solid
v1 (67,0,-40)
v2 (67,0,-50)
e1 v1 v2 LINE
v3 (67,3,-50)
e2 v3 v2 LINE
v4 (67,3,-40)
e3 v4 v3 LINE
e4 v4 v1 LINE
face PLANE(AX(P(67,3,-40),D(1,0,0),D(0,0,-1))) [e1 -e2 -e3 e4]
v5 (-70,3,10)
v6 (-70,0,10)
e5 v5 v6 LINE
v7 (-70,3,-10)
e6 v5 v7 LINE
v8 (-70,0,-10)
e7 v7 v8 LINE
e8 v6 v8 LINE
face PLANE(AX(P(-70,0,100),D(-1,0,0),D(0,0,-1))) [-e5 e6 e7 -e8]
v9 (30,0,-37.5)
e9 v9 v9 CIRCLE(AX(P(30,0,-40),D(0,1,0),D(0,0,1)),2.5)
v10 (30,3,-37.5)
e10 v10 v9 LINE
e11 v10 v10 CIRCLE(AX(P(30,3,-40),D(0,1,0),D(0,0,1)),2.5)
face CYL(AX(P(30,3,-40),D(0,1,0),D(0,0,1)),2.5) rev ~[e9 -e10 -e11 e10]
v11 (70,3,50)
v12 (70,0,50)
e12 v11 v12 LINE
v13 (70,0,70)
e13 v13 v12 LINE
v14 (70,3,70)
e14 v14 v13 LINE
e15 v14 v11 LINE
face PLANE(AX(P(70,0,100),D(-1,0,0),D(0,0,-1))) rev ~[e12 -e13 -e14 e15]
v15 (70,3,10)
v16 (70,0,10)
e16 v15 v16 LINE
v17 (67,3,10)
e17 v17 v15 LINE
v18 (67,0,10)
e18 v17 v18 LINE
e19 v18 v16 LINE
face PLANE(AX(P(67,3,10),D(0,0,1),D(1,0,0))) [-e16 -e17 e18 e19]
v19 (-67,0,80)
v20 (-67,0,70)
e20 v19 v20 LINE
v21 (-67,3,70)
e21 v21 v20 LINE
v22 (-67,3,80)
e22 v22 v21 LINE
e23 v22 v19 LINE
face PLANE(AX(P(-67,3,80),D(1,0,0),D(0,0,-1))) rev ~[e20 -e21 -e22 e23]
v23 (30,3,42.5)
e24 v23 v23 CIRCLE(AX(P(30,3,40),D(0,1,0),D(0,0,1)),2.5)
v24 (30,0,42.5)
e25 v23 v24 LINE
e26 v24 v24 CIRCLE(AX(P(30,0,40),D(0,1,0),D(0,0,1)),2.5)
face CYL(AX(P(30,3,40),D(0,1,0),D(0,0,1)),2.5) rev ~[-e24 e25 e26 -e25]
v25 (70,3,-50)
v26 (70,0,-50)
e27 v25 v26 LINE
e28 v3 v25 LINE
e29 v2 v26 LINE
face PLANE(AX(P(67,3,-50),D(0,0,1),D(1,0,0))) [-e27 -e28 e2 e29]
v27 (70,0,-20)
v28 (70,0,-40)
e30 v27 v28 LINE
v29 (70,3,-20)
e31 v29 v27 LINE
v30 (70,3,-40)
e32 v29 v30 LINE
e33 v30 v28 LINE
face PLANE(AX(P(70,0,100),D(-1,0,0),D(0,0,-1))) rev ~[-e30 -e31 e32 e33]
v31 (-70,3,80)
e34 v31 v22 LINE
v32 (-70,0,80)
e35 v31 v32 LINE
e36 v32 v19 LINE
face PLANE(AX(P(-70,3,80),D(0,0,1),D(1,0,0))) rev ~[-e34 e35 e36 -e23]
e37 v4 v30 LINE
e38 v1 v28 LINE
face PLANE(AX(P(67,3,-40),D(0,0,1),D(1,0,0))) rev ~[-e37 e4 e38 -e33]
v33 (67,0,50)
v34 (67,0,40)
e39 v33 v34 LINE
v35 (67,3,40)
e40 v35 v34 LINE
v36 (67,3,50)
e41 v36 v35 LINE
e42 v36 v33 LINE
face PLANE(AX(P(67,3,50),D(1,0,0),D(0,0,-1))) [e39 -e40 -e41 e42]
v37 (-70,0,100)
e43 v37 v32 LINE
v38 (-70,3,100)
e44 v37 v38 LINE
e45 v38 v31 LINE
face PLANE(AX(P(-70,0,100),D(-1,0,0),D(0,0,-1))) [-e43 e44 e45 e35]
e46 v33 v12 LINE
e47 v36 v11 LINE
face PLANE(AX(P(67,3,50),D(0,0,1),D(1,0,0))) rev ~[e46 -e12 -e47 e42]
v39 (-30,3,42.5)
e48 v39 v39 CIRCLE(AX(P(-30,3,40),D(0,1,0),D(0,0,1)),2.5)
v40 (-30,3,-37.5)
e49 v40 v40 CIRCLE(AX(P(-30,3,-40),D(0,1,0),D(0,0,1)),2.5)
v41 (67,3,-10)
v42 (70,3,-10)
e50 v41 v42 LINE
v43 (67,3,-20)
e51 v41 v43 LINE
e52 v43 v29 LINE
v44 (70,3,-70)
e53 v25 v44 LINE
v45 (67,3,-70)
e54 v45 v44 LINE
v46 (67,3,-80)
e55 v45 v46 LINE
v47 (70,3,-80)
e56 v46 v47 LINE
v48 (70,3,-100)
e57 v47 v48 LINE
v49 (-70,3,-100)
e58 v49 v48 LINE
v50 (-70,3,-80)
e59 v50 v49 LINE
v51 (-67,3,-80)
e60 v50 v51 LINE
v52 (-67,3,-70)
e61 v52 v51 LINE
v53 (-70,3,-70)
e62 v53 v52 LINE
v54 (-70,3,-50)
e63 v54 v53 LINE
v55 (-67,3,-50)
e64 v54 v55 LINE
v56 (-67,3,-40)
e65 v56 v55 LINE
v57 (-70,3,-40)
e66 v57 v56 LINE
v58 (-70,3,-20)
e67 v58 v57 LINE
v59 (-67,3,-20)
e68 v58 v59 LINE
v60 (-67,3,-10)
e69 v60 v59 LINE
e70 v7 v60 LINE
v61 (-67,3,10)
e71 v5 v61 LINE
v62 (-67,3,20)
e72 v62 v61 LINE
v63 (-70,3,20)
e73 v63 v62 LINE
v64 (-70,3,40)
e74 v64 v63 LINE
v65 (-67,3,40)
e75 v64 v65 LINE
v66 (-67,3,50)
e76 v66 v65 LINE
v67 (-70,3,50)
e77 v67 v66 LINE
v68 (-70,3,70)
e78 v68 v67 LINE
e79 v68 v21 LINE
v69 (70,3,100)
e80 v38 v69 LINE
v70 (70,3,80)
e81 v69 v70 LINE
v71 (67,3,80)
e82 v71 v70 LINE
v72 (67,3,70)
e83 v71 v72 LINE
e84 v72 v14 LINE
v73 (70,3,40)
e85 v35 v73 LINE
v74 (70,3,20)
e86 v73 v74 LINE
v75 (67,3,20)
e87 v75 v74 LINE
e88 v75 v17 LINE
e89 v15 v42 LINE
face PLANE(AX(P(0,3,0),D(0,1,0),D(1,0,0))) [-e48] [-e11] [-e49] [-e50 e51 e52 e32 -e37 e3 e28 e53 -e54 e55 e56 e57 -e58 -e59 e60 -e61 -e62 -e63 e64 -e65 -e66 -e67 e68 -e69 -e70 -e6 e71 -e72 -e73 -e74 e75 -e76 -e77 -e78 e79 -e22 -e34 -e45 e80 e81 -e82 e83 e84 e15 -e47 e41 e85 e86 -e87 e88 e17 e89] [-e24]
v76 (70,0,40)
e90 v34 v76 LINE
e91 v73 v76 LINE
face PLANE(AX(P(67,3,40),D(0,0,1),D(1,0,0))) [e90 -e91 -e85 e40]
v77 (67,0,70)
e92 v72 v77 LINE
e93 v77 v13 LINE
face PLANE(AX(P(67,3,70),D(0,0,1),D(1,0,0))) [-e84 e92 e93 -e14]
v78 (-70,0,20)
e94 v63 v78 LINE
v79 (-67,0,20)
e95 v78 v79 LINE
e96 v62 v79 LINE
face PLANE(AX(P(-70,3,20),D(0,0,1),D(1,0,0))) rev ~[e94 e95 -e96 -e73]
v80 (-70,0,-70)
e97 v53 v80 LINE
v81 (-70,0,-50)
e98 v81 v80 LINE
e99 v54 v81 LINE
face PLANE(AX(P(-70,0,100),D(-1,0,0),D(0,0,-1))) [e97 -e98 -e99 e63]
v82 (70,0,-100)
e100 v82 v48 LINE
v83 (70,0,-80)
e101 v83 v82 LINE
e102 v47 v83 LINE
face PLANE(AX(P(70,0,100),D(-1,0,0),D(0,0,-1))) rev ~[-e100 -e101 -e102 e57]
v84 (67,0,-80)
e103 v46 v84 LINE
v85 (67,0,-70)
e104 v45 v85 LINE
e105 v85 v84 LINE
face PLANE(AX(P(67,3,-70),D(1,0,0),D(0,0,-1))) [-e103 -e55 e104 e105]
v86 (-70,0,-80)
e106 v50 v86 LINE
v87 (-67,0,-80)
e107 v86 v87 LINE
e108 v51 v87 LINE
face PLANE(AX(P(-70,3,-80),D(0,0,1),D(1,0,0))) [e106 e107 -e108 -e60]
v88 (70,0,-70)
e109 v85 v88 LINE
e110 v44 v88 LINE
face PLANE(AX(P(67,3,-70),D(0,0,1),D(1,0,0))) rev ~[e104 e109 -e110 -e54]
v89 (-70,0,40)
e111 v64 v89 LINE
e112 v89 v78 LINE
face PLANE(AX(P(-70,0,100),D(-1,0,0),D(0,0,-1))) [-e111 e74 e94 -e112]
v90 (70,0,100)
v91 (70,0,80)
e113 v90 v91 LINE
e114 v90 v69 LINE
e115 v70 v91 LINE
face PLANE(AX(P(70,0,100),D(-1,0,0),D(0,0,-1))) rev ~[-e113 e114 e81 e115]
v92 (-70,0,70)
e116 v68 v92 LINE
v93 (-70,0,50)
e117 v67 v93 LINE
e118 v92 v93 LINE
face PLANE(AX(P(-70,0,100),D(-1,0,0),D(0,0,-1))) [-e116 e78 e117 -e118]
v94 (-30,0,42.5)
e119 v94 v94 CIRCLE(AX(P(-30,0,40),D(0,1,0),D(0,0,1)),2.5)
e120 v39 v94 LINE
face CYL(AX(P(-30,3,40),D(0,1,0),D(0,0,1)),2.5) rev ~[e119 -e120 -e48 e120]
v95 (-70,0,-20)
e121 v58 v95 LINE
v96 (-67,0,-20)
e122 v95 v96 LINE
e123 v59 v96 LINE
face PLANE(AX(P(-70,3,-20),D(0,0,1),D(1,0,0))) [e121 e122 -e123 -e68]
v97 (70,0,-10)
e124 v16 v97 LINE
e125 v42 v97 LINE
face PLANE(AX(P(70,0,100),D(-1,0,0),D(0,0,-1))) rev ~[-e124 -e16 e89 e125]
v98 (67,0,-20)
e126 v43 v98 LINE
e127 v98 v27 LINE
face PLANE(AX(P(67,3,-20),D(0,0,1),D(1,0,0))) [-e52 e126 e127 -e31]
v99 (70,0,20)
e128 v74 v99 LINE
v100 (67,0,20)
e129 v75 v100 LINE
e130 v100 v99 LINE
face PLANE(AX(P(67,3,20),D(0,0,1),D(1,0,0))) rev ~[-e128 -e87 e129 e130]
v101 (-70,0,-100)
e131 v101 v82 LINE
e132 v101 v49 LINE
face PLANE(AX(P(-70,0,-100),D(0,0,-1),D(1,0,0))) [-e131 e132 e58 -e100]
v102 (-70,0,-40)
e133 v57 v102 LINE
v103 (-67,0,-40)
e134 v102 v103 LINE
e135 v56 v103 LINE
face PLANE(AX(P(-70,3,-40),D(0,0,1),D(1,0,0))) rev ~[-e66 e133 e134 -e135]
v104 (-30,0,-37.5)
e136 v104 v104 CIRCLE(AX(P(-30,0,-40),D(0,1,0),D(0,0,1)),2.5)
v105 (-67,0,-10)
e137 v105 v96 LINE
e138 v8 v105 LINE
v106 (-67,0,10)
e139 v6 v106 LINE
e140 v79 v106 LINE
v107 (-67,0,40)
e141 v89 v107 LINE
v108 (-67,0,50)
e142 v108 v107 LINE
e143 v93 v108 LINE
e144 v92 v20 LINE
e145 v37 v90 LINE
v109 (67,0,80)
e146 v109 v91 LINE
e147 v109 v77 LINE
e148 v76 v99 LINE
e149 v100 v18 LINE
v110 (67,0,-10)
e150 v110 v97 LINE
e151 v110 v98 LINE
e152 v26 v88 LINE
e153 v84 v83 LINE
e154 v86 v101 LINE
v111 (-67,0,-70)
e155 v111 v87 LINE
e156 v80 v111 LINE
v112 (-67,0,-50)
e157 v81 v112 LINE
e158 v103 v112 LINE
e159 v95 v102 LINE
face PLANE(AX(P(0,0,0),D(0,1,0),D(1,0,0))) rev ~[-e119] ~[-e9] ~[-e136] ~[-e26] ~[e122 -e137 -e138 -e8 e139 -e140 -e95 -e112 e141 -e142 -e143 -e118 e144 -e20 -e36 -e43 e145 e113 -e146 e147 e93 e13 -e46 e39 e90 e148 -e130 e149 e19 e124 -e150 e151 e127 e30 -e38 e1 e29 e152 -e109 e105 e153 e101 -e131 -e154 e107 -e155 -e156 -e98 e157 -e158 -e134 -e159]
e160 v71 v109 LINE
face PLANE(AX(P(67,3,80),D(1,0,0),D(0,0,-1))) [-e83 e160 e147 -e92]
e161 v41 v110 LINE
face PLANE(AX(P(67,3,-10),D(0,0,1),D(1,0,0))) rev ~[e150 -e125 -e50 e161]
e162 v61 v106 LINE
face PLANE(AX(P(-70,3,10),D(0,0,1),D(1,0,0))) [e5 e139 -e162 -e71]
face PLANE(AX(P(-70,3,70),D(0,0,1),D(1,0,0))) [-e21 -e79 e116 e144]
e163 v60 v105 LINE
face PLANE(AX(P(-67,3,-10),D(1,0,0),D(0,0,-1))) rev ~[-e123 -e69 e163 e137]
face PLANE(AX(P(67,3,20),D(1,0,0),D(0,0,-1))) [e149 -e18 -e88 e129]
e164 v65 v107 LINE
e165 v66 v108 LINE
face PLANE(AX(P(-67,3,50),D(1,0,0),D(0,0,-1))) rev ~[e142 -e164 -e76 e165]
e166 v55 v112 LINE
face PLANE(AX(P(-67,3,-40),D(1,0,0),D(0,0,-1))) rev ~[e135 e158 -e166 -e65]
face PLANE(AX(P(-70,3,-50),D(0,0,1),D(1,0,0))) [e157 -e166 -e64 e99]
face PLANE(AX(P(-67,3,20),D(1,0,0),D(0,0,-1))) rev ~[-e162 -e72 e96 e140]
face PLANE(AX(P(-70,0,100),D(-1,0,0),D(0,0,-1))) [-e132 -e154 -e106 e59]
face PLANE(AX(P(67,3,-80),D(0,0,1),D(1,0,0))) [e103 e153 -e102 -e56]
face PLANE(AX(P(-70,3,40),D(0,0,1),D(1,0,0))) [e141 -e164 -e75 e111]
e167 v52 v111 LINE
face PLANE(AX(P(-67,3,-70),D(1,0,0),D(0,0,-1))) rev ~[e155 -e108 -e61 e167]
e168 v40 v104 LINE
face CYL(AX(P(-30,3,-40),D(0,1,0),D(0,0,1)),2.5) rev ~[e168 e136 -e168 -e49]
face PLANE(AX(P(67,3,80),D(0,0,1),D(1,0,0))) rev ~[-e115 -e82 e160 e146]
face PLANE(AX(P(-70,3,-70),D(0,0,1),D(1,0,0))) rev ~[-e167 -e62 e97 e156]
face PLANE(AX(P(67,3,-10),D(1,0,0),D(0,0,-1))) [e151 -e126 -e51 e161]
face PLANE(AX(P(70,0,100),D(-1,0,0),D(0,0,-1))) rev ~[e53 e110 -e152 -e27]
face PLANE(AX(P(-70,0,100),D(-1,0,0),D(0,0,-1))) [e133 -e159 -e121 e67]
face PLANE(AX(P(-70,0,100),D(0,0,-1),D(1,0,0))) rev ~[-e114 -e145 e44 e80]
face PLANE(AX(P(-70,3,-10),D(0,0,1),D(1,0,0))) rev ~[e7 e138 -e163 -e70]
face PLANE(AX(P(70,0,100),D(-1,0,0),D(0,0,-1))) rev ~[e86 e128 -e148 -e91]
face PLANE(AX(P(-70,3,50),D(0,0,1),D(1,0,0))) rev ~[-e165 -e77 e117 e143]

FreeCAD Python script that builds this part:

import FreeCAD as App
import Part
import Sketcher

V = App.Vector

doc = App.newDocument("Part")
body = doc.addObject("PartDesign::Body", "Body")

# Sketch on XZ plane
sketch1 = body.newObject("Sketcher::SketchObject", "Sketch")
sketch1.AttachmentSupport = (doc.getObject("XZ_Plane"), [""])
sketch1.MapMode = "FlatFace"
sketch1.addGeometry([
    Part.LineSegment(V(-70, -100, 0), V(-70, 100, 0)),
    Part.LineSegment(V(-70, 100, 0), V(70, 100, 0)),
    Part.LineSegment(V(70, 100, 0), V(70, -100, 0)),
    Part.LineSegment(V(70, -100, 0), V(-70, -100, 0)),
], False)
sketch1.addConstraint([
    Sketcher.Constraint("Coincident", 0, 2, 1, 1),
    Sketcher.Constraint("Coincident", 1, 2, 2, 1),
    Sketcher.Constraint("Coincident", 2, 2, 3, 1),
    Sketcher.Constraint("Coincident", 3, 2, 0, 1),
    Sketcher.Constraint("Vertical", 0),
    Sketcher.Constraint("Horizontal", 1),
    Sketcher.Constraint("Vertical", 2),
    Sketcher.Constraint("Horizontal", 3),
    Sketcher.Constraint("Symmetric", 0, 2, 2, 2, -1, 1),
    Sketcher.Constraint("DistanceX", 1, 1, 1, 2, 140.0),
    Sketcher.Constraint("DistanceY", 0, 1, 0, 2, 200.0),
])
pad1 = body.newObject("PartDesign::Pad", "Pad")
pad1.Profile = sketch1
pad1.Length = 3
pad1.Reversed = True

# Sketch on XZ plane
sketch2 = body.newObject("Sketcher::SketchObject", "Sketch001")
sketch2.AttachmentSupport = (doc.getObject("XZ_Plane"), [""])
sketch2.MapMode = "FlatFace"
sketch2.AttachmentOffset = App.Placement(V(0, 0, -3), App.Rotation())
sketch2.addGeometry([
    Part.Circle(V(-30, -40, 0), V(0, 0, 1), 2.5),
    Part.Circle(V(30, -40, 0), V(0, 0, 1), 2.5),
    Part.Circle(V(-30, 40, 0), V(0, 0, 1), 2.5),
    Part.Circle(V(30, 40, 0), V(0, 0, 1), 2.5),
], False)
sketch2.addConstraint([
    Sketcher.Constraint("Equal", 0, 1),
    Sketcher.Constraint("Equal", 1, 2),
    Sketcher.Constraint("Equal", 2, 3),
    Sketcher.Constraint("Symmetric", 1, 3, 2, 3, -1, 1),
    Sketcher.Constraint("Symmetric", 0, 3, 3, 3, -1, 1),
    Sketcher.Constraint("Symmetric", 0, 3, 1, 3, -2),
    Sketcher.Constraint("Diameter", 0, 5.0),
    Sketcher.Constraint("DistanceX", 0, 3, -1, 1, 30.0),
    Sketcher.Constraint("DistanceY", 0, 3, -1, 1, 40.0),
])
pocket1 = body.newObject("PartDesign::Pocket", "Pocket")
pocket1.Profile = sketch2
pocket1.Length = 10
pocket1.Reversed = True

# Sketch on XZ plane
sketch3 = body.newObject("Sketcher::SketchObject", "Sketch002")
sketch3.AttachmentSupport = (doc.getObject("XZ_Plane"), [""])
sketch3.MapMode = "FlatFace"
sketch3.AttachmentOffset = App.Placement(V(0, 0, -3), App.Rotation())
sketch3.addGeometry([
    Part.LineSegment(V(67, 40, 0), V(67, 50, 0)),  # 0
    Part.LineSegment(V(67, 50, 0), V(70, 50, 0)),  # 1
    Part.LineSegment(V(70, 50, 0), V(70, 40, 0)),  # 2
    Part.LineSegment(V(70, 40, 0), V(67, 40, 0)),  # 3
    Part.LineSegment(V(67, 70, 0), V(67, 80, 0)),  # 4
    Part.LineSegment(V(67, 80, 0), V(70, 80, 0)),  # 5
    Part.LineSegment(V(70, 80, 0), V(70, 70, 0)),  # 6
    Part.LineSegment(V(70, 70, 0), V(67, 70, 0)),  # 7
    Part.LineSegment(V(67, 10, 0), V(67, 20, 0)),  # 8
    Part.LineSegment(V(67, 20, 0), V(70, 20, 0)),  # 9
    Part.LineSegment(V(70, 20, 0), V(70, 10, 0)),  # 10
    Part.LineSegment(V(70, 10, 0), V(67, 10, 0)),  # 11
    Part.LineSegment(V(67, -20, 0), V(67, -10, 0)),  # 12
    Part.LineSegment(V(67, -10, 0), V(70, -10, 0)),  # 13
    Part.LineSegment(V(70, -10, 0), V(70, -20, 0)),  # 14
    Part.LineSegment(V(70, -20, 0), V(67, -20, 0)),  # 15
    Part.LineSegment(V(67, -50, 0), V(67, -40, 0)),  # 16
    Part.LineSegment(V(67, -40, 0), V(70, -40, 0)),  # 17
    Part.LineSegment(V(70, -40, 0), V(70, -50, 0)),  # 18
    Part.LineSegment(V(70, -50, 0), V(67, -50, 0)),  # 19
    Part.LineSegment(V(67, -80, 0), V(67, -70, 0)),  # 20
    Part.LineSegment(V(67, -70, 0), V(70, -70, 0)),  # 21
    Part.LineSegment(V(70, -70, 0), V(70, -80, 0)),  # 22
    Part.LineSegment(V(70, -80, 0), V(67, -80, 0)),  # 23
    Part.LineSegment(V(-70, 70, 0), V(-70, 80, 0)),  # 24
    Part.LineSegment(V(-70, 80, 0), V(-67, 80, 0)),  # 25
    Part.LineSegment(V(-67, 80, 0), V(-67, 70, 0)),  # 26
    Part.LineSegment(V(-67, 70, 0), V(-70, 70, 0)),  # 27
    Part.LineSegment(V(-70, 40, 0), V(-70, 50, 0)),  # 28
    Part.LineSegment(V(-70, 50, 0), V(-67, 50, 0)),  # 29
    Part.LineSegment(V(-67, 50, 0), V(-67, 40, 0)),  # 30
    Part.LineSegment(V(-67, 40, 0), V(-70, 40, 0)),  # 31
    Part.LineSegment(V(-70, 10, 0), V(-70, 20, 0)),  # 32
    Part.LineSegment(V(-70, 20, 0), V(-67, 20, 0)),  # 33
    Part.LineSegment(V(-67, 20, 0), V(-67, 10, 0)),  # 34
    Part.LineSegment(V(-67, 10, 0), V(-70, 10, 0)),  # 35
    Part.LineSegment(V(-70, -20, 0), V(-70, -10, 0)),  # 36
    Part.LineSegment(V(-70, -10, 0), V(-67, -10, 0)),  # 37
    Part.LineSegment(V(-67, -10, 0), V(-67, -20, 0)),  # 38
    Part.LineSegment(V(-67, -20, 0), V(-70, -20, 0)),  # 39
    Part.LineSegment(V(-70, -50, 0), V(-70, -40, 0)),  # 40
    Part.LineSegment(V(-70, -40, 0), V(-67, -40, 0)),  # 41
    Part.LineSegment(V(-67, -40, 0), V(-67, -50, 0)),  # 42
    Part.LineSegment(V(-67, -50, 0), V(-70, -50, 0)),  # 43
    Part.LineSegment(V(-70, -80, 0), V(-70, -70, 0)),  # 44
    Part.LineSegment(V(-70, -70, 0), V(-67, -70, 0)),  # 45
    Part.LineSegment(V(-67, -70, 0), V(-67, -80, 0)),  # 46
    Part.LineSegment(V(-67, -80, 0), V(-70, -80, 0)),  # 47
], False)
sketch3.addConstraint([
    Sketcher.Constraint("Coincident", 0, 2, 1, 1),
    Sketcher.Constraint("Coincident", 1, 2, 2, 1),
    Sketcher.Constraint("Coincident", 2, 2, 3, 1),
    Sketcher.Constraint("Coincident", 3, 2, 0, 1),
    Sketcher.Constraint("Coincident", 4, 2, 5, 1),
    Sketcher.Constraint("Coincident", 5, 2, 6, 1),
    Sketcher.Constraint("Coincident", 6, 2, 7, 1),
    Sketcher.Constraint("Coincident", 7, 2, 4, 1),
    Sketcher.Constraint("Coincident", 8, 2, 9, 1),
    Sketcher.Constraint("Coincident", 9, 2, 10, 1),
    Sketcher.Constraint("Coincident", 10, 2, 11, 1),
    Sketcher.Constraint("Coincident", 11, 2, 8, 1),
    Sketcher.Constraint("Coincident", 12, 2, 13, 1),
    Sketcher.Constraint("Coincident", 13, 2, 14, 1),
    Sketcher.Constraint("Coincident", 14, 2, 15, 1),
    Sketcher.Constraint("Coincident", 15, 2, 12, 1),
    Sketcher.Constraint("Coincident", 16, 2, 17, 1),
    Sketcher.Constraint("Coincident", 17, 2, 18, 1),
    Sketcher.Constraint("Coincident", 18, 2, 19, 1),
    Sketcher.Constraint("Coincident", 19, 2, 16, 1),
    Sketcher.Constraint("Coincident", 20, 2, 21, 1),
    Sketcher.Constraint("Coincident", 21, 2, 22, 1),
    Sketcher.Constraint("Coincident", 22, 2, 23, 1),
    Sketcher.Constraint("Coincident", 23, 2, 20, 1),
    Sketcher.Constraint("Coincident", 24, 2, 25, 1),
    Sketcher.Constraint("Coincident", 25, 2, 26, 1),
    Sketcher.Constraint("Coincident", 26, 2, 27, 1),
    Sketcher.Constraint("Coincident", 27, 2, 24, 1),
    Sketcher.Constraint("Coincident", 28, 2, 29, 1),
    Sketcher.Constraint("Coincident", 29, 2, 30, 1),
    Sketcher.Constraint("Coincident", 30, 2, 31, 1),
    Sketcher.Constraint("Coincident", 31, 2, 28, 1),
    Sketcher.Constraint("Coincident", 32, 2, 33, 1),
    Sketcher.Constraint("Coincident", 33, 2, 34, 1),
    Sketcher.Constraint("Coincident", 34, 2, 35, 1),
    Sketcher.Constraint("Coincident", 35, 2, 32, 1),
    Sketcher.Constraint("Coincident", 36, 2, 37, 1),
    Sketcher.Constraint("Coincident", 37, 2, 38, 1),
    Sketcher.Constraint("Coincident", 38, 2, 39, 1),
    Sketcher.Constraint("Coincident", 39, 2, 36, 1),
    Sketcher.Constraint("Coincident", 40, 2, 41, 1),
    Sketcher.Constraint("Coincident", 41, 2, 42, 1),
    Sketcher.Constraint("Coincident", 42, 2, 43, 1),
    Sketcher.Constraint("Coincident", 43, 2, 40, 1),
    Sketcher.Constraint("Coincident", 44, 2, 45, 1),
    Sketcher.Constraint("Coincident", 45, 2, 46, 1),
    Sketcher.Constraint("Coincident", 46, 2, 47, 1),
    Sketcher.Constraint("Coincident", 47, 2, 44, 1),
    Sketcher.Constraint("Vertical", 0),
    Sketcher.Constraint("Horizontal", 1),
    Sketcher.Constraint("Vertical", 2),
    Sketcher.Constraint("Horizontal", 3),
    Sketcher.Constraint("Vertical", 4),
    Sketcher.Constraint("Horizontal", 5),
    Sketcher.Constraint("Vertical", 6),
    Sketcher.Constraint("Horizontal", 7),
    Sketcher.Constraint("Vertical", 8),
    Sketcher.Constraint("Horizontal", 9),
    Sketcher.Constraint("Vertical", 10),
    Sketcher.Constraint("Horizontal", 11),
    Sketcher.Constraint("Vertical", 12),
    Sketcher.Constraint("Horizontal", 13),
    Sketcher.Constraint("Vertical", 14),
    Sketcher.Constraint("Horizontal", 15),
    Sketcher.Constraint("Vertical", 16),
    Sketcher.Constraint("Horizontal", 17),
    Sketcher.Constraint("Vertical", 18),
    Sketcher.Constraint("Horizontal", 19),
    Sketcher.Constraint("Vertical", 20),
    Sketcher.Constraint("Horizontal", 21),
    Sketcher.Constraint("Vertical", 22),
    Sketcher.Constraint("Horizontal", 23),
    Sketcher.Constraint("Vertical", 24),
    Sketcher.Constraint("Horizontal", 25),
    Sketcher.Constraint("Vertical", 26),
    Sketcher.Constraint("Horizontal", 27),
    Sketcher.Constraint("Vertical", 28),
    Sketcher.Constraint("Horizontal", 29),
    Sketcher.Constraint("Vertical", 30),
    Sketcher.Constraint("Horizontal", 31),
    Sketcher.Constraint("Vertical", 32),
    Sketcher.Constraint("Horizontal", 33),
    Sketcher.Constraint("Vertical", 34),
    Sketcher.Constraint("Horizontal", 35),
    Sketcher.Constraint("Vertical", 36),
    Sketcher.Constraint("Horizontal", 37),
    Sketcher.Constraint("Vertical", 38),
    Sketcher.Constraint("Horizontal", 39),
    Sketcher.Constraint("Vertical", 40),
    Sketcher.Constraint("Horizontal", 41),
    Sketcher.Constraint("Vertical", 42),
    Sketcher.Constraint("Horizontal", 43),
    Sketcher.Constraint("Vertical", 44),
    Sketcher.Constraint("Horizontal", 45),
    Sketcher.Constraint("Vertical", 46),
    Sketcher.Constraint("Horizontal", 47),
    Sketcher.Constraint("Symmetric", 22, 2, 24, 2, -1, 1),
    Sketcher.Constraint("Symmetric", 20, 2, 26, 2, -1, 1),
    Sketcher.Constraint("Symmetric", 18, 2, 28, 2, -1, 1),
    Sketcher.Constraint("Symmetric", 16, 2, 30, 2, -1, 1),
    Sketcher.Constraint("Symmetric", 14, 2, 32, 2, -1, 1),
    Sketcher.Constraint("Symmetric", 12, 2, 34, 2, -1, 1),
    Sketcher.Constraint("Symmetric", 10, 2, 36, 2, -1, 1),
    Sketcher.Constraint("Symmetric", 8, 2, 38, 2, -1, 1),
    Sketcher.Constraint("Symmetric", 2, 2, 40, 2, -1, 1),
    Sketcher.Constraint("Symmetric", 0, 2, 42, 2, -1, 1),
    Sketcher.Constraint("Symmetric", 6, 2, 44, 2, -1, 1),
    Sketcher.Constraint("Symmetric", 4, 2, 46, 2, -1, 1),
    Sketcher.Constraint("Symmetric", 5, 2, 24, 2, -2),
    Sketcher.Constraint("Symmetric", 7, 2, 26, 2, -2),
    Sketcher.Constraint("Symmetric", 1, 2, 28, 2, -2),
    Sketcher.Constraint("Symmetric", 3, 2, 30, 2, -2),
    Sketcher.Constraint("Symmetric", 9, 2, 32, 2, -2),
    Sketcher.Constraint("Symmetric", 11, 2, 34, 2, -2),
    Sketcher.Constraint("Vertical", 3, 2, 4, 2),
    Sketcher.Constraint("Vertical", 2, 2, 5, 2),
    Sketcher.Constraint("Vertical", 7, 2, 8, 2),
    Sketcher.Constraint("Vertical", 6, 2, 9, 2),
    Sketcher.Constraint("Equal", 2, 4),
    Sketcher.Constraint("Equal", 6, 8),
    Sketcher.Constraint("DistanceX", 1, 1, 1, 2, 3.0),
    Sketcher.Constraint("DistanceY", 0, 1, 0, 2, 10.0),
    Sketcher.Constraint("DistanceX", -1, 1, 0, 2, 67.0),
    Sketcher.Constraint("DistanceY", -1, 1, 0, 2, 50.0),
    Sketcher.Constraint("DistanceY", -1, 1, 4, 2, 80.0),
    Sketcher.Constraint("DistanceY", -1, 1, 8, 2, 20.0),
])
pocket2 = body.newObject("PartDesign::Pocket", "Pocket001")
pocket2.Profile = sketch3
pocket2.Length = 10
pocket2.Reversed = True

doc.recompute()
